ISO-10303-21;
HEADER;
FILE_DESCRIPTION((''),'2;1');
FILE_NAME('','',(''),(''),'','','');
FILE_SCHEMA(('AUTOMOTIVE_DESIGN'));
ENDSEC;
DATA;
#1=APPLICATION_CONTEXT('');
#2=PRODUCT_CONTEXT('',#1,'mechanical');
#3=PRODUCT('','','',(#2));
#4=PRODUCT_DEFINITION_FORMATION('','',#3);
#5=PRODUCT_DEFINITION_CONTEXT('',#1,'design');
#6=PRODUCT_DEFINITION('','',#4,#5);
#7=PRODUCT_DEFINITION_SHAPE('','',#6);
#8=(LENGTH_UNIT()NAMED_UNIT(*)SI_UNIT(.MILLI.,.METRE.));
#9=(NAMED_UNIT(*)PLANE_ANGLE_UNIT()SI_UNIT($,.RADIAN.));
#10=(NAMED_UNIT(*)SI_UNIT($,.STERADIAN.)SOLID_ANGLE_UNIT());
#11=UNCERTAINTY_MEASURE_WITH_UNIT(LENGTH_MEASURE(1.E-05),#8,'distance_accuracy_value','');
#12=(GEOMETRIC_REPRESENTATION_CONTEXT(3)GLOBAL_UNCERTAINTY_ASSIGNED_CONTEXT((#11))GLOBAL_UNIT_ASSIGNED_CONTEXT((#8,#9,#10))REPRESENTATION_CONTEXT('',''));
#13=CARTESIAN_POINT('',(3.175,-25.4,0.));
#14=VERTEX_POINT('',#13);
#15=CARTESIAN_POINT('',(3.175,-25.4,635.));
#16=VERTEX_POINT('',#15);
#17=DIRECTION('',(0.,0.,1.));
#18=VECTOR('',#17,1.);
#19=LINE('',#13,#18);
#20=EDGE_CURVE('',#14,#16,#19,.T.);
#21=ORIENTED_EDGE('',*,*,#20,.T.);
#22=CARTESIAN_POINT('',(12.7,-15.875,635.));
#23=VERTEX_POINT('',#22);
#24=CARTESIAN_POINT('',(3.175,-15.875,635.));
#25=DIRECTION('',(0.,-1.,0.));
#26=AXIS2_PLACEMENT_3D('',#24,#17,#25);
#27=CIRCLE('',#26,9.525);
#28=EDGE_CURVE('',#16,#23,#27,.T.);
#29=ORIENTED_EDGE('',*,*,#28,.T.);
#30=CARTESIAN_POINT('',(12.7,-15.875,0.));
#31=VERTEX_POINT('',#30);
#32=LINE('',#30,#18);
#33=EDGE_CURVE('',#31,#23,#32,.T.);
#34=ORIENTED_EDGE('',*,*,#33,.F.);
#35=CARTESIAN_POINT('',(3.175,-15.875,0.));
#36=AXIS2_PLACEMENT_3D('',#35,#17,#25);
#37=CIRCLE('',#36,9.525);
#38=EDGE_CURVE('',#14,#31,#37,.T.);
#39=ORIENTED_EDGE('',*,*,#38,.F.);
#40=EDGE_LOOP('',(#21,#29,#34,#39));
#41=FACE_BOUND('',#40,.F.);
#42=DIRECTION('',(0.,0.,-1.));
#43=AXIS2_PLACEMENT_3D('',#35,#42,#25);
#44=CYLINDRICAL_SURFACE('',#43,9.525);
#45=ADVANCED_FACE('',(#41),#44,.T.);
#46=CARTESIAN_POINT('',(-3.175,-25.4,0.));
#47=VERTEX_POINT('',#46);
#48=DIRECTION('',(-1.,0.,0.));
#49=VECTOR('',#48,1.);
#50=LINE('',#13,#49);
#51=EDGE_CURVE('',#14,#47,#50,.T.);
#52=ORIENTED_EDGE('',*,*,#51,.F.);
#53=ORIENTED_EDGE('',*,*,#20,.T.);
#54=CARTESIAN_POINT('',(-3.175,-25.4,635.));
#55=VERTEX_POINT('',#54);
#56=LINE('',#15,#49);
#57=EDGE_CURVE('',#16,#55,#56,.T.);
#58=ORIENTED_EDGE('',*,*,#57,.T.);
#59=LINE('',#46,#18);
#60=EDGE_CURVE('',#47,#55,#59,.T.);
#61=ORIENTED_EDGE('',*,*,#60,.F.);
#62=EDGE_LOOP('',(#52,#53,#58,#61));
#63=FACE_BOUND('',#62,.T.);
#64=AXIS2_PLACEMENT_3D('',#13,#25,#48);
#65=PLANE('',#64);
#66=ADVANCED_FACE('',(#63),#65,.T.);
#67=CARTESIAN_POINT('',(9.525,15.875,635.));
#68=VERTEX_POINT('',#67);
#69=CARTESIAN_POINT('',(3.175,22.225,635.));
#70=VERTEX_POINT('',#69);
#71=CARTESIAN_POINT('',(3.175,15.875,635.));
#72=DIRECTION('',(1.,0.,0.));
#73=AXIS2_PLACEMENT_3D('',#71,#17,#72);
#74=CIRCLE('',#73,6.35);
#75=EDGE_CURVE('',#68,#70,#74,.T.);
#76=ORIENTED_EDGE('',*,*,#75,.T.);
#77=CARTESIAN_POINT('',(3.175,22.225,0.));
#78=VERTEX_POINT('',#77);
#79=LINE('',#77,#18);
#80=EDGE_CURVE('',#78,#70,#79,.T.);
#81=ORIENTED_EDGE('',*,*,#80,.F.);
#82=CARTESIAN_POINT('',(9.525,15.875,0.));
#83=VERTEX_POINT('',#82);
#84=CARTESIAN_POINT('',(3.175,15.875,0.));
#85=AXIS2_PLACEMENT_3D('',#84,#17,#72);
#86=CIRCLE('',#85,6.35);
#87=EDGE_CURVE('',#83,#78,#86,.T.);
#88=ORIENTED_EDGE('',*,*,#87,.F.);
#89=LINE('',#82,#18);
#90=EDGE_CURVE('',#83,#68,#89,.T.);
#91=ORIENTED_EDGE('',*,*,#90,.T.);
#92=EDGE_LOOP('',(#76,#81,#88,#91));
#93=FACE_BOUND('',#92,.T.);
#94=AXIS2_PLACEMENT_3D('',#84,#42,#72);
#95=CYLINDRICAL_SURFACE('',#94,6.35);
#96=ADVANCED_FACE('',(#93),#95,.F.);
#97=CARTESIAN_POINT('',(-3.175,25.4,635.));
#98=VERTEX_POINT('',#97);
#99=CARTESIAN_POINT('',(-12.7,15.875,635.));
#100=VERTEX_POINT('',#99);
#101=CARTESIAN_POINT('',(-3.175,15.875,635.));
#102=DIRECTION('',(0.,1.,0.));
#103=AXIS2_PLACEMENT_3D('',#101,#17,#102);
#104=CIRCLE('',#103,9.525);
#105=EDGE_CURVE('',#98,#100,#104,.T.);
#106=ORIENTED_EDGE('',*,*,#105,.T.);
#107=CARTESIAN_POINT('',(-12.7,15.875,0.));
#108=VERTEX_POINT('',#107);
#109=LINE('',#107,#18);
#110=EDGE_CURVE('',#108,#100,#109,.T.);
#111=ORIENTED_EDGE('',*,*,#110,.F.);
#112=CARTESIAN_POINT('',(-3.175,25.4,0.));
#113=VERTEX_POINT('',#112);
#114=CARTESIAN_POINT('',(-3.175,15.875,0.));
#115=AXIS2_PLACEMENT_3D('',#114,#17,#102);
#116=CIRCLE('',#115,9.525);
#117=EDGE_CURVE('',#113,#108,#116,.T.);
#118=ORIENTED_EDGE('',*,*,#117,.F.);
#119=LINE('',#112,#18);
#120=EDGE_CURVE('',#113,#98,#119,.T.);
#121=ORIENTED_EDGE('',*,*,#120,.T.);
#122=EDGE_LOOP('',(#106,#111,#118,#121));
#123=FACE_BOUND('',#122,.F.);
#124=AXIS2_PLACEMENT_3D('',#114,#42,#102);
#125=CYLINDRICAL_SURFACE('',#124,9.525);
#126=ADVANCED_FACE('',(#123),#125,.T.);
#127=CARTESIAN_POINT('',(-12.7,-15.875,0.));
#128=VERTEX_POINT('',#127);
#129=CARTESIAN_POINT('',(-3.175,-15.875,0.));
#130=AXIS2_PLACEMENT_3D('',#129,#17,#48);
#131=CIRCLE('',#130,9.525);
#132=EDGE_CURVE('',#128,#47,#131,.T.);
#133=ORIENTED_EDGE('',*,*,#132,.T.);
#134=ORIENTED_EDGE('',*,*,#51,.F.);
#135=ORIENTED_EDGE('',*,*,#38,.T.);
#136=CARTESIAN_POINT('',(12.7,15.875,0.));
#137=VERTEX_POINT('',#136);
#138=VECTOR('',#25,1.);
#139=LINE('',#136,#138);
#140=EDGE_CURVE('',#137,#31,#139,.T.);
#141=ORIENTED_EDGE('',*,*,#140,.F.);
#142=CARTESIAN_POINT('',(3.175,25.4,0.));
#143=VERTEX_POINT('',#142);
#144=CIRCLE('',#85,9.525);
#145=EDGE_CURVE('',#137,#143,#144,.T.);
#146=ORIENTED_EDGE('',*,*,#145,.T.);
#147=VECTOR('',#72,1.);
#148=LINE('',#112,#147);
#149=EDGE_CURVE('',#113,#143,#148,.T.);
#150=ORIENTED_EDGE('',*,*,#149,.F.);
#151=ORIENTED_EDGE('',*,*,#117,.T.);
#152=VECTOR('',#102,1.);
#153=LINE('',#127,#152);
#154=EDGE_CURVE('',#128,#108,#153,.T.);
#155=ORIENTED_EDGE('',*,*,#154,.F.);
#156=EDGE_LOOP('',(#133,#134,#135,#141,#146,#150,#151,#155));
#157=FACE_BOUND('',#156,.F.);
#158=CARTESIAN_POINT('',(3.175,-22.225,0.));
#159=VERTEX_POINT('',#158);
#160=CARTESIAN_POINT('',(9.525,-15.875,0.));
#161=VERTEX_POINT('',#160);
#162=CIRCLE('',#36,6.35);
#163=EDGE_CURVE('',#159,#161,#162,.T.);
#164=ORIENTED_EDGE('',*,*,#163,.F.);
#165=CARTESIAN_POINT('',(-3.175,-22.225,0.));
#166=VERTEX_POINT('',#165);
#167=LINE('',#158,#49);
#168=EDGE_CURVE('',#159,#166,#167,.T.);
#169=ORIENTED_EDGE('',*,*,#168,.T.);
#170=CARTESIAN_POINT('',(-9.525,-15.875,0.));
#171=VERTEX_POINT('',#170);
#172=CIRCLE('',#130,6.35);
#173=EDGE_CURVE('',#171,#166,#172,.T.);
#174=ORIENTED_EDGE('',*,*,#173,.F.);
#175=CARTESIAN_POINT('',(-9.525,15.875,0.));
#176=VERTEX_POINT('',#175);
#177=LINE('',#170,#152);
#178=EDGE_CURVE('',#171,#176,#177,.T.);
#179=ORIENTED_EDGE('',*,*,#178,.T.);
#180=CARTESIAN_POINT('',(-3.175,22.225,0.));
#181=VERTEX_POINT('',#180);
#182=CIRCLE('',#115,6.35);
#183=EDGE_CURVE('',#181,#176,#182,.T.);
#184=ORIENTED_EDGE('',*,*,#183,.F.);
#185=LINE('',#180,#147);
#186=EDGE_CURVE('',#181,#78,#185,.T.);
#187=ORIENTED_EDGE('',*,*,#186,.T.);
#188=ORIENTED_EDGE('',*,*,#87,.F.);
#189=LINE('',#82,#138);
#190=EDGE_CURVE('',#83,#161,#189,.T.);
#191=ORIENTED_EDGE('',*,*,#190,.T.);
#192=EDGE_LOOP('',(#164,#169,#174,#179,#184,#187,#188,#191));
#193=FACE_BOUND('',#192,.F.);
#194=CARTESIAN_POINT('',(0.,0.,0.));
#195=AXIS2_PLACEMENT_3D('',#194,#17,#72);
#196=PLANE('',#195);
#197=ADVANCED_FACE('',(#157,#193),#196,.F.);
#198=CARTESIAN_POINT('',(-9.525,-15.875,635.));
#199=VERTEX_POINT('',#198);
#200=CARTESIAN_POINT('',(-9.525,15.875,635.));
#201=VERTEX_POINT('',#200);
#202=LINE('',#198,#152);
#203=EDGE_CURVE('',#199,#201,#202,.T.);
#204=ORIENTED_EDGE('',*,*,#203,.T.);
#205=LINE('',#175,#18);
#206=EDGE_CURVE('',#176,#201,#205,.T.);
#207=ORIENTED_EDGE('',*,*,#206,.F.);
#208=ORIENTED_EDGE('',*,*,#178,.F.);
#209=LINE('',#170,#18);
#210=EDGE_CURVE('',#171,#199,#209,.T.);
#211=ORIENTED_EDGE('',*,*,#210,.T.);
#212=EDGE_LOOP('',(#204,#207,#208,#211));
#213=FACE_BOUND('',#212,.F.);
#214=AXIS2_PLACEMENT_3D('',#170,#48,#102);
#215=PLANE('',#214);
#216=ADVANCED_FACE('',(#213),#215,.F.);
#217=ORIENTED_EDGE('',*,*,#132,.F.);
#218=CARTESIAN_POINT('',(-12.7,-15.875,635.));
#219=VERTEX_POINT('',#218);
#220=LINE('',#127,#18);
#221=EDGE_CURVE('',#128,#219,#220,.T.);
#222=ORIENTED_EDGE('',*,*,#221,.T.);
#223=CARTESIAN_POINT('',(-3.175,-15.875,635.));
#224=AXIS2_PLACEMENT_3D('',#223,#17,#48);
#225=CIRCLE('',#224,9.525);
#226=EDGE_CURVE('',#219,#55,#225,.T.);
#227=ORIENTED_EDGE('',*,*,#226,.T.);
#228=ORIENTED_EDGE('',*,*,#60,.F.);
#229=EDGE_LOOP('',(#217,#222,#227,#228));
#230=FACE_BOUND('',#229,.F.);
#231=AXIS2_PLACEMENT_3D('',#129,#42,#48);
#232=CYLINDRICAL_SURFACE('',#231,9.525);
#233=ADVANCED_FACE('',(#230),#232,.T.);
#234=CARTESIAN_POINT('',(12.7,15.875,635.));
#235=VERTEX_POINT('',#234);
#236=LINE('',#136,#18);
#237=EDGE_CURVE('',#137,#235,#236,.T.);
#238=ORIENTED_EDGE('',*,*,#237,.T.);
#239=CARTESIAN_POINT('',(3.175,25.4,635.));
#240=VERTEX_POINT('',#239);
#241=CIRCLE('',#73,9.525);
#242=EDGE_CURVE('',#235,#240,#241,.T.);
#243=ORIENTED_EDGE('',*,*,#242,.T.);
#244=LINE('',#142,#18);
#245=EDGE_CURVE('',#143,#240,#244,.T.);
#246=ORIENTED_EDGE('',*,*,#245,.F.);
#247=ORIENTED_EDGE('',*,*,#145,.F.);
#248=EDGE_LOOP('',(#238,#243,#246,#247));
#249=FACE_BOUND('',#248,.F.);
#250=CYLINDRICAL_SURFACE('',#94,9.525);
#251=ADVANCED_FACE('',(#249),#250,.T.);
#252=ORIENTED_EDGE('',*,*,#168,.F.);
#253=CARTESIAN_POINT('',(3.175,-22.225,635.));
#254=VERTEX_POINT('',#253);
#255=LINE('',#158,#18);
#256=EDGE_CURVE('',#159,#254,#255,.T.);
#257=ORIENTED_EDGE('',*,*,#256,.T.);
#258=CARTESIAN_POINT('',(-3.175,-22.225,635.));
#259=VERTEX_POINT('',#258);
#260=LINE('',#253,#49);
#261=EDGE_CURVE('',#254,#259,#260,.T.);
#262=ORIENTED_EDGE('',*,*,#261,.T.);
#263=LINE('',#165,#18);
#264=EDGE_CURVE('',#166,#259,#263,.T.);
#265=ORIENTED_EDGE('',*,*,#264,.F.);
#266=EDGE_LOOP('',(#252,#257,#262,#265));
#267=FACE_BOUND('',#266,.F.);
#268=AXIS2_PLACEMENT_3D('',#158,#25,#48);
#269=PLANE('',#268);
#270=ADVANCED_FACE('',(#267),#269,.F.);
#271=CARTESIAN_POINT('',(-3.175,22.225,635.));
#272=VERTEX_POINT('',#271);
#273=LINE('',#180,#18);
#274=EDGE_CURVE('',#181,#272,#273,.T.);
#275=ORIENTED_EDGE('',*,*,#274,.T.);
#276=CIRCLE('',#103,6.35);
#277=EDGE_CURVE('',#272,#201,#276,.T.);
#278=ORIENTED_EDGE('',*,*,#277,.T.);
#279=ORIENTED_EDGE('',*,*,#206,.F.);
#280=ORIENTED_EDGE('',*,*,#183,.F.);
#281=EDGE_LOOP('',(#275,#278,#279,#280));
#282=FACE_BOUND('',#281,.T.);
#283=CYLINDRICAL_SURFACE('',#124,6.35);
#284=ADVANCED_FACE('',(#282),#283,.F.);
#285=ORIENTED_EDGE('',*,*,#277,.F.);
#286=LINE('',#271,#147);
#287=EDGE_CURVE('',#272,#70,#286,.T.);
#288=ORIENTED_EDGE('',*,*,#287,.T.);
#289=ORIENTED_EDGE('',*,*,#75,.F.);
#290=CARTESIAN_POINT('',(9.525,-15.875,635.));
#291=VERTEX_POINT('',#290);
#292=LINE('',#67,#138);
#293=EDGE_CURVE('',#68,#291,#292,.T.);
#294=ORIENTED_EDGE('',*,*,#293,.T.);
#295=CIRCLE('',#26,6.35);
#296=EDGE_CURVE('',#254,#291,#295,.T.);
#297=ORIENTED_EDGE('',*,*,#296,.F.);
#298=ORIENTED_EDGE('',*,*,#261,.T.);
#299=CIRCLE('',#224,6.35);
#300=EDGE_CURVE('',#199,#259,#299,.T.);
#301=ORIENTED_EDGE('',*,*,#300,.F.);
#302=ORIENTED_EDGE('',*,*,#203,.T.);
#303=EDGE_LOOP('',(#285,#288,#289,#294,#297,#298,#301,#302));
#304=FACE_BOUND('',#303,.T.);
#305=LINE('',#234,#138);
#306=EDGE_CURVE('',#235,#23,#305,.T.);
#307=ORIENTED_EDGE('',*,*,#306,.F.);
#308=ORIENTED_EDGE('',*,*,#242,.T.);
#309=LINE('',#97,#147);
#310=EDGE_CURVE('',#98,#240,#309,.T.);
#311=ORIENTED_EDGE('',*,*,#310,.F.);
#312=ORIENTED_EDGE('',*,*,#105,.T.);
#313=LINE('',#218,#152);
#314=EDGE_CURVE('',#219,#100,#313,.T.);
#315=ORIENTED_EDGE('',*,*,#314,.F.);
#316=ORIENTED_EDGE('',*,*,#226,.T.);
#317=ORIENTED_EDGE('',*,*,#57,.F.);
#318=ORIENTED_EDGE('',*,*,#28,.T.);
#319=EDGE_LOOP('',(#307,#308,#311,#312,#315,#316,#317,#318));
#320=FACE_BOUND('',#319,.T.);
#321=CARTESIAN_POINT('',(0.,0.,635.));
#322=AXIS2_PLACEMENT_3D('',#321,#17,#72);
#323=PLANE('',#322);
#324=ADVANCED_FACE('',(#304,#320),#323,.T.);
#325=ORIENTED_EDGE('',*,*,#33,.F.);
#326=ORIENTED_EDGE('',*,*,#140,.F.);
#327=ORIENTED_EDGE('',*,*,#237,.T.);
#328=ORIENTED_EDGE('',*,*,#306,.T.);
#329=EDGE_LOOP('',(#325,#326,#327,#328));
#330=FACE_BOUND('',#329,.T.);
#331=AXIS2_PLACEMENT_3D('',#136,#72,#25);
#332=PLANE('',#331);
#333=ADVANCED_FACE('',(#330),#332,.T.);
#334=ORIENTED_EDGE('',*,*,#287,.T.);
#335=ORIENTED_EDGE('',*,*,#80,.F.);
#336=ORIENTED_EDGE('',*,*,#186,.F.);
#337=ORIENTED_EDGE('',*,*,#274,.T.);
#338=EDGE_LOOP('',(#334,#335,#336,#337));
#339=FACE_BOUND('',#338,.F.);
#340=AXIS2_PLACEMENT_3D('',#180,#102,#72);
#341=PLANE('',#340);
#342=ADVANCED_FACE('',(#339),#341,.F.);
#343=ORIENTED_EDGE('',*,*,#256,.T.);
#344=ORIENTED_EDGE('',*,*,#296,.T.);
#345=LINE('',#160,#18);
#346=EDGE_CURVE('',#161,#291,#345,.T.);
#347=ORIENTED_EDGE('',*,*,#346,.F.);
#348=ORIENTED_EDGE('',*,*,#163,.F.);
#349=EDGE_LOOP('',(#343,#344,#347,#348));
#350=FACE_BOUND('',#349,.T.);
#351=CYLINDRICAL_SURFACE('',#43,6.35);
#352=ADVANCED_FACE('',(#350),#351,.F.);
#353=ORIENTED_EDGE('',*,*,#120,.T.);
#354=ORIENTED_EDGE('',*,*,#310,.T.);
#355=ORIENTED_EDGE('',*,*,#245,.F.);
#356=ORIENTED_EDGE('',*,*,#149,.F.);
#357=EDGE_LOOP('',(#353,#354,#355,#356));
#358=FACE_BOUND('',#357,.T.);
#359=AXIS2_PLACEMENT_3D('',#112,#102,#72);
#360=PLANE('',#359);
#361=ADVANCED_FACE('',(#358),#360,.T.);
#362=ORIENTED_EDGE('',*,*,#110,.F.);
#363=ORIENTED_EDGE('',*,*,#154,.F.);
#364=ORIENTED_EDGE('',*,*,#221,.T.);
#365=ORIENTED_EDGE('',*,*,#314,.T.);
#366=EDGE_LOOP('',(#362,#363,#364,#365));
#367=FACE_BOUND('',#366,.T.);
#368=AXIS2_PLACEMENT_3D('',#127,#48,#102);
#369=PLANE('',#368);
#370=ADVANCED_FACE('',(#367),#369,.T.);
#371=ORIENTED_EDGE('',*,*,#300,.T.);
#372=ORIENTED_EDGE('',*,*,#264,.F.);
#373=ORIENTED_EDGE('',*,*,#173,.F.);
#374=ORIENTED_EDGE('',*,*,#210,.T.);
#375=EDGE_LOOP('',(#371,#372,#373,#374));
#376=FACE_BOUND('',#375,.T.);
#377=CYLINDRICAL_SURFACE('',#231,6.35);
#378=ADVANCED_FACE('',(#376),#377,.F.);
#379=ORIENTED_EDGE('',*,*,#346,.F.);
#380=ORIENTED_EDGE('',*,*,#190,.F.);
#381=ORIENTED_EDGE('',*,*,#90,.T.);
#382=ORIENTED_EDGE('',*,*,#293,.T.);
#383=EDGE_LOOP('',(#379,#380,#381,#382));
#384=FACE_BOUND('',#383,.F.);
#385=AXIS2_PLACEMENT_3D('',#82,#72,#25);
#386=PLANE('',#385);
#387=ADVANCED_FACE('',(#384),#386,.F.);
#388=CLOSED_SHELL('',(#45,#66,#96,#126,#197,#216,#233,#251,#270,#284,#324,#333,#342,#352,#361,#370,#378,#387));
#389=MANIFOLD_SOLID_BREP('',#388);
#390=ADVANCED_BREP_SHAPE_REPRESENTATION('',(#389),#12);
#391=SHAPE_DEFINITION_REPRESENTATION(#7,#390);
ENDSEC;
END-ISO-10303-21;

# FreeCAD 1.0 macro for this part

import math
import FreeCAD as App
import Part
import Sketcher
from FreeCAD import Vector
Q = App.Units.Quantity

doc = App.newDocument("Part")
body = doc.addObject("PartDesign::Body", "Body")

# Sketch on XY plane
sketch1 = body.newObject("Sketcher::SketchObject", "Sketch")
sketch1.AttachmentSupport = (doc.getObject("XY_Plane"), [""])
sketch1.MapMode = "FlatFace"
sketch1.addGeometry(Part.LineSegment(Vector(-13, 16, 0), Vector(-13, -16, 0)), False)
sketch1.addGeometry(Part.ArcOfCircle(Part.Circle(Vector(-3, -16, 0), Vector(0, 0, 1), 10), math.radians(180), math.radians(270)), False)
sketch1.addGeometry(Part.LineSegment(Vector(-3, -25, 0), Vector(3, -25, 0)), False)
sketch1.addGeometry(Part.ArcOfCircle(Part.Circle(Vector(3, -16, 0), Vector(0, 0, 1), 10), math.radians(-90), math.radians(0)), False)
sketch1.addGeometry(Part.LineSegment(Vector(13, -16, 0), Vector(13, 16, 0)), False)
sketch1.addGeometry(Part.ArcOfCircle(Part.Circle(Vector(3, 16, 0), Vector(0, 0, 1), 10), math.radians(0), math.radians(90)), False)
sketch1.addGeometry(Part.LineSegment(Vector(3, 25, 0), Vector(-3, 25, 0)), False)
sketch1.addGeometry(Part.ArcOfCircle(Part.Circle(Vector(-3, 16, 0), Vector(0, 0, 1), 10), math.radians(90), math.radians(180)), False)
sketch1.addGeometry(Part.ArcOfCircle(Part.Circle(Vector(-3, 16, 0), Vector(0, 0, 1), 6), math.radians(90), math.radians(180)), False)
sketch1.addGeometry(Part.LineSegment(Vector(-3, 22, 0), Vector(3, 22, 0)), False)
sketch1.addGeometry(Part.ArcOfCircle(Part.Circle(Vector(3, 16, 0), Vector(0, 0, 1), 6), math.radians(0), math.radians(90)), False)
sketch1.addGeometry(Part.LineSegment(Vector(10, 16, 0), Vector(10, -16, 0)), False)
sketch1.addGeometry(Part.ArcOfCircle(Part.Circle(Vector(3, -16, 0), Vector(0, 0, 1), 6), math.radians(-90), math.radians(0)), False)
sketch1.addGeometry(Part.LineSegment(Vector(3, -22, 0), Vector(-3, -22, 0)), False)
sketch1.addGeometry(Part.ArcOfCircle(Part.Circle(Vector(-3, -16, 0), Vector(0, 0, 1), 6), math.radians(180), math.radians(270)), False)
sketch1.addGeometry(Part.LineSegment(Vector(-10, -16, 0), Vector(-10, 16, 0)), False)
sketch1.addConstraint(Sketcher.Constraint("Tangent", 0, 2, 1, 1))
sketch1.addConstraint(Sketcher.Constraint("Tangent", 1, 2, 2, 1))
sketch1.addConstraint(Sketcher.Constraint("Tangent", 2, 2, 3, 1))
sketch1.addConstraint(Sketcher.Constraint("Tangent", 3, 2, 4, 1))
sketch1.addConstraint(Sketcher.Constraint("Tangent", 4, 2, 5, 1))
sketch1.addConstraint(Sketcher.Constraint("Tangent", 5, 2, 6, 1))
sketch1.addConstraint(Sketcher.Constraint("Tangent", 6, 2, 7, 1))
sketch1.addConstraint(Sketcher.Constraint("Tangent", 7, 2, 0, 1))
sketch1.addConstraint(Sketcher.Constraint("Tangent", 8, 1, 9, 1))
sketch1.addConstraint(Sketcher.Constraint("Tangent", 9, 2, 10, 2))
sketch1.addConstraint(Sketcher.Constraint("Tangent", 10, 1, 11, 1))
sketch1.addConstraint(Sketcher.Constraint("Tangent", 11, 2, 12, 2))
sketch1.addConstraint(Sketcher.Constraint("Tangent", 12, 1, 13, 1))
sketch1.addConstraint(Sketcher.Constraint("Tangent", 13, 2, 14, 2))
sketch1.addConstraint(Sketcher.Constraint("Tangent", 14, 1, 15, 1))
sketch1.addConstraint(Sketcher.Constraint("Tangent", 15, 2, 8, 2))
sketch1.addConstraint(Sketcher.Constraint("Vertical", 0))
sketch1.addConstraint(Sketcher.Constraint("Horizontal", 2))
sketch1.addConstraint(Sketcher.Constraint("Vertical", 4))
sketch1.addConstraint(Sketcher.Constraint("Horizontal", 6))
sketch1.addConstraint(Sketcher.Constraint("Horizontal", 9))
sketch1.addConstraint(Sketcher.Constraint("Vertical", 11))
sketch1.addConstraint(Sketcher.Constraint("Horizontal", 13))
sketch1.addConstraint(Sketcher.Constraint("Vertical", 15))
sketch1.addConstraint(Sketcher.Constraint("Coincident", 8, 3, 7, 3))
sketch1.addConstraint(Sketcher.Constraint("Coincident", 10, 3, 5, 3))
sketch1.addConstraint(Sketcher.Constraint("Coincident", 12, 3, 3, 3))
sketch1.addConstraint(Sketcher.Constraint("Equal", 1, 3))
sketch1.addConstraint(Sketcher.Constraint("Equal", 3, 5))
sketch1.addConstraint(Sketcher.Constraint("Equal", 5, 7))
sketch1.addConstraint(Sketcher.Constraint("Equal", 12, 14))
sketch1.addConstraint(Sketcher.Constraint("Symmetric", 1, 3, 5, 3, -1, 1))
sketch1.addConstraint(Sketcher.Constraint("Radius", 8, Q("0.25 in")))
sketch1.addConstraint(Sketcher.Constraint("DistanceY", 1, 2, -1, 1, Q("1 in")))
sketch1.addConstraint(Sketcher.Constraint("Radius", 1, Q("0.375 in")))
sketch1.addConstraint(Sketcher.Constraint("DistanceX", 0, 2, -1, 1, Q("0.5 in")))
pad1 = body.newObject("PartDesign::Pad", "Pad")
pad1.Profile = sketch1
pad1.Length = Q("25 in")

doc.recompute()
